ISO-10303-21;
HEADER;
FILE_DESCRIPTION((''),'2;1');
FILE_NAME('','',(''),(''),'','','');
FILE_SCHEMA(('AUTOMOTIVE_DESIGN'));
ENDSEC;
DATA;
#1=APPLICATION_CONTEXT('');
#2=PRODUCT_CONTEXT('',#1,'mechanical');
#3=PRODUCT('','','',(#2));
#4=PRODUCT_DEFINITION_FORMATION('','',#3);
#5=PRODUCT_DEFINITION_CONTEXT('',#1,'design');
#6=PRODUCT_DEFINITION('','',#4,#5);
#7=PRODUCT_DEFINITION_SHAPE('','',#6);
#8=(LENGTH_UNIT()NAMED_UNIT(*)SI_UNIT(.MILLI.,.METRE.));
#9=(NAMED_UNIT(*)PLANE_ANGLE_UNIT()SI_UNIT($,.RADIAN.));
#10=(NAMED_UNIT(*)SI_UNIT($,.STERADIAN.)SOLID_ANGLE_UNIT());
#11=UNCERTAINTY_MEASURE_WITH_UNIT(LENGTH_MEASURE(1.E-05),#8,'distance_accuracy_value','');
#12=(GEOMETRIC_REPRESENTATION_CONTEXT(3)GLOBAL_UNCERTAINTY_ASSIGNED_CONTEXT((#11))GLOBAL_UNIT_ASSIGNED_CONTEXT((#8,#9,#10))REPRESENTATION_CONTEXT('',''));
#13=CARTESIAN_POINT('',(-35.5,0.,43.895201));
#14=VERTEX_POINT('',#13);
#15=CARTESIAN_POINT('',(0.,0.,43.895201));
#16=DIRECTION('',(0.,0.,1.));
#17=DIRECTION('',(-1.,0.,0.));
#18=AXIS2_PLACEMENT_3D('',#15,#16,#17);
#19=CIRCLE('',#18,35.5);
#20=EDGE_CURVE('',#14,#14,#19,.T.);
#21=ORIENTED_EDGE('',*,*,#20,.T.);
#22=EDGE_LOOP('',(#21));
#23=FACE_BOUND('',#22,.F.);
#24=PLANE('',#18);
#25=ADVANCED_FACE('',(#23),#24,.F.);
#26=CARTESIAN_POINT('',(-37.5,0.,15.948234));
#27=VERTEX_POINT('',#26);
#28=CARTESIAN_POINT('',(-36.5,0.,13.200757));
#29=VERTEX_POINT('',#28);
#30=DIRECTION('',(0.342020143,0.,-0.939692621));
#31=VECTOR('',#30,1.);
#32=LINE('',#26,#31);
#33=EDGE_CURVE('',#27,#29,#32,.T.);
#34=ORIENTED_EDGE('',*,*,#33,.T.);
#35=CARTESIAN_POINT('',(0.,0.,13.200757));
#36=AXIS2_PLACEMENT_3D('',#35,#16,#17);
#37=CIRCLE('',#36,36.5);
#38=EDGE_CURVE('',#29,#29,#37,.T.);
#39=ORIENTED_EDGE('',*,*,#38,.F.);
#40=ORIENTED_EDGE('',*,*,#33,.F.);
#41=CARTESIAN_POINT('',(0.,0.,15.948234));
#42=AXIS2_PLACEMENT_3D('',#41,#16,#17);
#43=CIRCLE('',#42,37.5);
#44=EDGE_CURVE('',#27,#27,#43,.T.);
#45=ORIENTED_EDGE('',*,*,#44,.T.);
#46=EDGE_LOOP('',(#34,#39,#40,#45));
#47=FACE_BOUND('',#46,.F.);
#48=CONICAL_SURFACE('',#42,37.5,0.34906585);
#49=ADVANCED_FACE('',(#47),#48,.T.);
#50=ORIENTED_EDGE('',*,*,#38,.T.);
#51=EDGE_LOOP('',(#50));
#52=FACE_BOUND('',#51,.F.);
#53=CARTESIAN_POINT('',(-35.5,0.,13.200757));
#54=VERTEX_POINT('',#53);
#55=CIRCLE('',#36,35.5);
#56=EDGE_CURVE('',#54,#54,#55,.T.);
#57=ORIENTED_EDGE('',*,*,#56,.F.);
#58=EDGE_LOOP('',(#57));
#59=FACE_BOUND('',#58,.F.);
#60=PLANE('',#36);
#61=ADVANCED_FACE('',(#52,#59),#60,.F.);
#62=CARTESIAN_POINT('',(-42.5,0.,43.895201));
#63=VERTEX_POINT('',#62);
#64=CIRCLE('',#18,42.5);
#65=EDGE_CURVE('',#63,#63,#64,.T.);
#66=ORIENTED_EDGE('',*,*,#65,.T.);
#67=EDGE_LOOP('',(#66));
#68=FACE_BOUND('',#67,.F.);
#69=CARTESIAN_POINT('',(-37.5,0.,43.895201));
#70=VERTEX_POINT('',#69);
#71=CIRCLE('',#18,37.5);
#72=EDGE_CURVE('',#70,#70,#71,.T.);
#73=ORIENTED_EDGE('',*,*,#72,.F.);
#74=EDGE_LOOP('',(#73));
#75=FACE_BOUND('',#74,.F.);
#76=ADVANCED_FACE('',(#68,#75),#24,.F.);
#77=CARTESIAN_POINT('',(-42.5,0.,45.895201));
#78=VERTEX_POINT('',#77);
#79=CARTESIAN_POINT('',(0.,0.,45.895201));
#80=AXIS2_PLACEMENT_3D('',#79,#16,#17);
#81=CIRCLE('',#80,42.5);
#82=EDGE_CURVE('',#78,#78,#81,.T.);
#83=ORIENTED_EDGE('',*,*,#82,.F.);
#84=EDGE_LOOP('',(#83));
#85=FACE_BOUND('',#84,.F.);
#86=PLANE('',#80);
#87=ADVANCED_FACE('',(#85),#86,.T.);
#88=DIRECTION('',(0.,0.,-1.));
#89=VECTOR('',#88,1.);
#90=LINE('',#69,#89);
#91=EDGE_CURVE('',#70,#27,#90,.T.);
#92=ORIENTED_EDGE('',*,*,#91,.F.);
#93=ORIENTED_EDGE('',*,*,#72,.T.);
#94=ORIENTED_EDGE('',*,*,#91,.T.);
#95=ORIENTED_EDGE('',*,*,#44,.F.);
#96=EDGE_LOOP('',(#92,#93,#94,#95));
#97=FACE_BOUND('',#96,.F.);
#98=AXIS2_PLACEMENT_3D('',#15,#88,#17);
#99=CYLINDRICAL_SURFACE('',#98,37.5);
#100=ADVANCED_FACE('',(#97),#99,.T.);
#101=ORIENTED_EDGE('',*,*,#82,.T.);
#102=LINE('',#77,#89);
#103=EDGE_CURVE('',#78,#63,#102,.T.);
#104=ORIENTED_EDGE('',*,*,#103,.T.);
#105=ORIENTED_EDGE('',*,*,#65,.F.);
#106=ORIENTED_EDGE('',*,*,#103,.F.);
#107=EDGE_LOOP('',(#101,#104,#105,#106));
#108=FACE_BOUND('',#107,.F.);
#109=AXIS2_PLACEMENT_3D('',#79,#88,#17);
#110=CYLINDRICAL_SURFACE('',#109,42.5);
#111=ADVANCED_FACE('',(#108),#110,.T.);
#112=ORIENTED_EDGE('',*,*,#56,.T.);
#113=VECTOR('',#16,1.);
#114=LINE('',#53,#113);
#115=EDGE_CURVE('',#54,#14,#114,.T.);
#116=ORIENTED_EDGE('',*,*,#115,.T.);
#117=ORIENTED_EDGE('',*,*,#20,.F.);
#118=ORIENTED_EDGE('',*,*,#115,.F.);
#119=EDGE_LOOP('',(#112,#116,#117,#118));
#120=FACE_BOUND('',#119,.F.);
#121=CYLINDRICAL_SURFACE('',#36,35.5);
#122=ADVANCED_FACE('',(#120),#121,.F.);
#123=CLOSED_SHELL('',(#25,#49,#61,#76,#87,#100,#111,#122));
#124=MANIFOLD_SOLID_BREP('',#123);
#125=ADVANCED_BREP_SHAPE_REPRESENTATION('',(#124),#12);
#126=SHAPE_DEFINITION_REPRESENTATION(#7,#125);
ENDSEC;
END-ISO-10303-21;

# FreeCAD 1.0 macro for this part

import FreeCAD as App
import Part
import Sketcher


def edges_at(feature, points):
    """Names of the edges that pass closest to the given points."""
    edges = feature.Shape.Edges
    near = lambda p: min(range(len(edges)), key=lambda i: edges[i].distToShape(Part.Vertex(*p))[0])
    return sorted({f"Edge{near(p) + 1}" for p in points})

doc = App.newDocument("Part")
body = doc.addObject("PartDesign::Body", "Body")

sketch1 = doc.addObject("Sketcher::SketchObject", "Sketch")
body.addObject(sketch1)
sketch1.AttachmentSupport = (doc.XZ_Plane, [""])
sketch1.MapMode = "FlatFace"
sketch1.addGeometry([
    Part.LineSegment(App.Vector(0, 43.895201, 0), App.Vector(0, 45.895201, 0)),
    Part.LineSegment(App.Vector(0, 45.895201, 0), App.Vector(-42.5, 45.895201, 0)),
    Part.LineSegment(App.Vector(-42.5, 45.895201, 0), App.Vector(-42.5, 43.895201, 0)),
    Part.LineSegment(App.Vector(-42.5, 43.895201, 0), App.Vector(-37.5, 43.895201, 0)),
    Part.LineSegment(App.Vector(-37.5, 43.895201, 0), App.Vector(-37.5, 13.200757, 0)),
    Part.LineSegment(App.Vector(-37.5, 13.200757, 0), App.Vector(-35.5, 13.200757, 0)),
    Part.LineSegment(App.Vector(-35.5, 13.200757, 0), App.Vector(-35.5, 43.895201, 0)),
    Part.LineSegment(App.Vector(-35.5, 43.895201, 0), App.Vector(0, 43.895201, 0)),
], False)
sketch1.addConstraint([
    Sketcher.Constraint("Coincident", 0, 2, 1, 1),
    Sketcher.Constraint("Coincident", 1, 2, 2, 1),
    Sketcher.Constraint("Coincident", 2, 2, 3, 1),
    Sketcher.Constraint("Coincident", 3, 2, 4, 1),
    Sketcher.Constraint("Coincident", 4, 2, 5, 1),
    Sketcher.Constraint("Coincident", 5, 2, 6, 1),
    Sketcher.Constraint("Coincident", 6, 2, 7, 1),
    Sketcher.Constraint("Coincident", 7, 2, 0, 1),
    Sketcher.Constraint("Vertical", 0),
    Sketcher.Constraint("Horizontal", 1),
    Sketcher.Constraint("Vertical", 2),
    Sketcher.Constraint("Horizontal", 3),
    Sketcher.Constraint("Vertical", 4),
    Sketcher.Constraint("Horizontal", 5),
    Sketcher.Constraint("Vertical", 6),
    Sketcher.Constraint("Horizontal", 7),
    Sketcher.Constraint("PointOnObject", 0, 2, -2),
    Sketcher.Constraint("Horizontal", 3, 2, 6, 2),
    Sketcher.Constraint("Equal", 5, 0),
    Sketcher.Constraint("DistanceX", 3, 1, 3, 2, 5.0),
    Sketcher.Constraint("DistanceX", 5, 1, 5, 2, 2.0),
    Sketcher.Constraint("DistanceX", 1, 2, 1, 1, 42.5),
    Sketcher.Constraint("DistanceY", -1, 1, 0, 2, 45.895201),
    Sketcher.Constraint("DistanceY", 4, 2, 4, 1, 30.694444),
])
revolution = doc.addObject("PartDesign::Revolution", "Revolution")
body.addObject(revolution)
revolution.Profile = sketch1
revolution.ReferenceAxis = (sketch1, ["V_Axis"])
revolution.Angle = 360
doc.recompute()

chamfer = doc.addObject("PartDesign::Chamfer", "Chamfer")
body.addObject(chamfer)
chamfer.Base = (revolution, edges_at(revolution, [(37.5, 0, 13.201)]))
chamfer.ChamferType = "Two distances"
chamfer.Size = 2.747477
chamfer.Size2 = 1

doc.recompute()
